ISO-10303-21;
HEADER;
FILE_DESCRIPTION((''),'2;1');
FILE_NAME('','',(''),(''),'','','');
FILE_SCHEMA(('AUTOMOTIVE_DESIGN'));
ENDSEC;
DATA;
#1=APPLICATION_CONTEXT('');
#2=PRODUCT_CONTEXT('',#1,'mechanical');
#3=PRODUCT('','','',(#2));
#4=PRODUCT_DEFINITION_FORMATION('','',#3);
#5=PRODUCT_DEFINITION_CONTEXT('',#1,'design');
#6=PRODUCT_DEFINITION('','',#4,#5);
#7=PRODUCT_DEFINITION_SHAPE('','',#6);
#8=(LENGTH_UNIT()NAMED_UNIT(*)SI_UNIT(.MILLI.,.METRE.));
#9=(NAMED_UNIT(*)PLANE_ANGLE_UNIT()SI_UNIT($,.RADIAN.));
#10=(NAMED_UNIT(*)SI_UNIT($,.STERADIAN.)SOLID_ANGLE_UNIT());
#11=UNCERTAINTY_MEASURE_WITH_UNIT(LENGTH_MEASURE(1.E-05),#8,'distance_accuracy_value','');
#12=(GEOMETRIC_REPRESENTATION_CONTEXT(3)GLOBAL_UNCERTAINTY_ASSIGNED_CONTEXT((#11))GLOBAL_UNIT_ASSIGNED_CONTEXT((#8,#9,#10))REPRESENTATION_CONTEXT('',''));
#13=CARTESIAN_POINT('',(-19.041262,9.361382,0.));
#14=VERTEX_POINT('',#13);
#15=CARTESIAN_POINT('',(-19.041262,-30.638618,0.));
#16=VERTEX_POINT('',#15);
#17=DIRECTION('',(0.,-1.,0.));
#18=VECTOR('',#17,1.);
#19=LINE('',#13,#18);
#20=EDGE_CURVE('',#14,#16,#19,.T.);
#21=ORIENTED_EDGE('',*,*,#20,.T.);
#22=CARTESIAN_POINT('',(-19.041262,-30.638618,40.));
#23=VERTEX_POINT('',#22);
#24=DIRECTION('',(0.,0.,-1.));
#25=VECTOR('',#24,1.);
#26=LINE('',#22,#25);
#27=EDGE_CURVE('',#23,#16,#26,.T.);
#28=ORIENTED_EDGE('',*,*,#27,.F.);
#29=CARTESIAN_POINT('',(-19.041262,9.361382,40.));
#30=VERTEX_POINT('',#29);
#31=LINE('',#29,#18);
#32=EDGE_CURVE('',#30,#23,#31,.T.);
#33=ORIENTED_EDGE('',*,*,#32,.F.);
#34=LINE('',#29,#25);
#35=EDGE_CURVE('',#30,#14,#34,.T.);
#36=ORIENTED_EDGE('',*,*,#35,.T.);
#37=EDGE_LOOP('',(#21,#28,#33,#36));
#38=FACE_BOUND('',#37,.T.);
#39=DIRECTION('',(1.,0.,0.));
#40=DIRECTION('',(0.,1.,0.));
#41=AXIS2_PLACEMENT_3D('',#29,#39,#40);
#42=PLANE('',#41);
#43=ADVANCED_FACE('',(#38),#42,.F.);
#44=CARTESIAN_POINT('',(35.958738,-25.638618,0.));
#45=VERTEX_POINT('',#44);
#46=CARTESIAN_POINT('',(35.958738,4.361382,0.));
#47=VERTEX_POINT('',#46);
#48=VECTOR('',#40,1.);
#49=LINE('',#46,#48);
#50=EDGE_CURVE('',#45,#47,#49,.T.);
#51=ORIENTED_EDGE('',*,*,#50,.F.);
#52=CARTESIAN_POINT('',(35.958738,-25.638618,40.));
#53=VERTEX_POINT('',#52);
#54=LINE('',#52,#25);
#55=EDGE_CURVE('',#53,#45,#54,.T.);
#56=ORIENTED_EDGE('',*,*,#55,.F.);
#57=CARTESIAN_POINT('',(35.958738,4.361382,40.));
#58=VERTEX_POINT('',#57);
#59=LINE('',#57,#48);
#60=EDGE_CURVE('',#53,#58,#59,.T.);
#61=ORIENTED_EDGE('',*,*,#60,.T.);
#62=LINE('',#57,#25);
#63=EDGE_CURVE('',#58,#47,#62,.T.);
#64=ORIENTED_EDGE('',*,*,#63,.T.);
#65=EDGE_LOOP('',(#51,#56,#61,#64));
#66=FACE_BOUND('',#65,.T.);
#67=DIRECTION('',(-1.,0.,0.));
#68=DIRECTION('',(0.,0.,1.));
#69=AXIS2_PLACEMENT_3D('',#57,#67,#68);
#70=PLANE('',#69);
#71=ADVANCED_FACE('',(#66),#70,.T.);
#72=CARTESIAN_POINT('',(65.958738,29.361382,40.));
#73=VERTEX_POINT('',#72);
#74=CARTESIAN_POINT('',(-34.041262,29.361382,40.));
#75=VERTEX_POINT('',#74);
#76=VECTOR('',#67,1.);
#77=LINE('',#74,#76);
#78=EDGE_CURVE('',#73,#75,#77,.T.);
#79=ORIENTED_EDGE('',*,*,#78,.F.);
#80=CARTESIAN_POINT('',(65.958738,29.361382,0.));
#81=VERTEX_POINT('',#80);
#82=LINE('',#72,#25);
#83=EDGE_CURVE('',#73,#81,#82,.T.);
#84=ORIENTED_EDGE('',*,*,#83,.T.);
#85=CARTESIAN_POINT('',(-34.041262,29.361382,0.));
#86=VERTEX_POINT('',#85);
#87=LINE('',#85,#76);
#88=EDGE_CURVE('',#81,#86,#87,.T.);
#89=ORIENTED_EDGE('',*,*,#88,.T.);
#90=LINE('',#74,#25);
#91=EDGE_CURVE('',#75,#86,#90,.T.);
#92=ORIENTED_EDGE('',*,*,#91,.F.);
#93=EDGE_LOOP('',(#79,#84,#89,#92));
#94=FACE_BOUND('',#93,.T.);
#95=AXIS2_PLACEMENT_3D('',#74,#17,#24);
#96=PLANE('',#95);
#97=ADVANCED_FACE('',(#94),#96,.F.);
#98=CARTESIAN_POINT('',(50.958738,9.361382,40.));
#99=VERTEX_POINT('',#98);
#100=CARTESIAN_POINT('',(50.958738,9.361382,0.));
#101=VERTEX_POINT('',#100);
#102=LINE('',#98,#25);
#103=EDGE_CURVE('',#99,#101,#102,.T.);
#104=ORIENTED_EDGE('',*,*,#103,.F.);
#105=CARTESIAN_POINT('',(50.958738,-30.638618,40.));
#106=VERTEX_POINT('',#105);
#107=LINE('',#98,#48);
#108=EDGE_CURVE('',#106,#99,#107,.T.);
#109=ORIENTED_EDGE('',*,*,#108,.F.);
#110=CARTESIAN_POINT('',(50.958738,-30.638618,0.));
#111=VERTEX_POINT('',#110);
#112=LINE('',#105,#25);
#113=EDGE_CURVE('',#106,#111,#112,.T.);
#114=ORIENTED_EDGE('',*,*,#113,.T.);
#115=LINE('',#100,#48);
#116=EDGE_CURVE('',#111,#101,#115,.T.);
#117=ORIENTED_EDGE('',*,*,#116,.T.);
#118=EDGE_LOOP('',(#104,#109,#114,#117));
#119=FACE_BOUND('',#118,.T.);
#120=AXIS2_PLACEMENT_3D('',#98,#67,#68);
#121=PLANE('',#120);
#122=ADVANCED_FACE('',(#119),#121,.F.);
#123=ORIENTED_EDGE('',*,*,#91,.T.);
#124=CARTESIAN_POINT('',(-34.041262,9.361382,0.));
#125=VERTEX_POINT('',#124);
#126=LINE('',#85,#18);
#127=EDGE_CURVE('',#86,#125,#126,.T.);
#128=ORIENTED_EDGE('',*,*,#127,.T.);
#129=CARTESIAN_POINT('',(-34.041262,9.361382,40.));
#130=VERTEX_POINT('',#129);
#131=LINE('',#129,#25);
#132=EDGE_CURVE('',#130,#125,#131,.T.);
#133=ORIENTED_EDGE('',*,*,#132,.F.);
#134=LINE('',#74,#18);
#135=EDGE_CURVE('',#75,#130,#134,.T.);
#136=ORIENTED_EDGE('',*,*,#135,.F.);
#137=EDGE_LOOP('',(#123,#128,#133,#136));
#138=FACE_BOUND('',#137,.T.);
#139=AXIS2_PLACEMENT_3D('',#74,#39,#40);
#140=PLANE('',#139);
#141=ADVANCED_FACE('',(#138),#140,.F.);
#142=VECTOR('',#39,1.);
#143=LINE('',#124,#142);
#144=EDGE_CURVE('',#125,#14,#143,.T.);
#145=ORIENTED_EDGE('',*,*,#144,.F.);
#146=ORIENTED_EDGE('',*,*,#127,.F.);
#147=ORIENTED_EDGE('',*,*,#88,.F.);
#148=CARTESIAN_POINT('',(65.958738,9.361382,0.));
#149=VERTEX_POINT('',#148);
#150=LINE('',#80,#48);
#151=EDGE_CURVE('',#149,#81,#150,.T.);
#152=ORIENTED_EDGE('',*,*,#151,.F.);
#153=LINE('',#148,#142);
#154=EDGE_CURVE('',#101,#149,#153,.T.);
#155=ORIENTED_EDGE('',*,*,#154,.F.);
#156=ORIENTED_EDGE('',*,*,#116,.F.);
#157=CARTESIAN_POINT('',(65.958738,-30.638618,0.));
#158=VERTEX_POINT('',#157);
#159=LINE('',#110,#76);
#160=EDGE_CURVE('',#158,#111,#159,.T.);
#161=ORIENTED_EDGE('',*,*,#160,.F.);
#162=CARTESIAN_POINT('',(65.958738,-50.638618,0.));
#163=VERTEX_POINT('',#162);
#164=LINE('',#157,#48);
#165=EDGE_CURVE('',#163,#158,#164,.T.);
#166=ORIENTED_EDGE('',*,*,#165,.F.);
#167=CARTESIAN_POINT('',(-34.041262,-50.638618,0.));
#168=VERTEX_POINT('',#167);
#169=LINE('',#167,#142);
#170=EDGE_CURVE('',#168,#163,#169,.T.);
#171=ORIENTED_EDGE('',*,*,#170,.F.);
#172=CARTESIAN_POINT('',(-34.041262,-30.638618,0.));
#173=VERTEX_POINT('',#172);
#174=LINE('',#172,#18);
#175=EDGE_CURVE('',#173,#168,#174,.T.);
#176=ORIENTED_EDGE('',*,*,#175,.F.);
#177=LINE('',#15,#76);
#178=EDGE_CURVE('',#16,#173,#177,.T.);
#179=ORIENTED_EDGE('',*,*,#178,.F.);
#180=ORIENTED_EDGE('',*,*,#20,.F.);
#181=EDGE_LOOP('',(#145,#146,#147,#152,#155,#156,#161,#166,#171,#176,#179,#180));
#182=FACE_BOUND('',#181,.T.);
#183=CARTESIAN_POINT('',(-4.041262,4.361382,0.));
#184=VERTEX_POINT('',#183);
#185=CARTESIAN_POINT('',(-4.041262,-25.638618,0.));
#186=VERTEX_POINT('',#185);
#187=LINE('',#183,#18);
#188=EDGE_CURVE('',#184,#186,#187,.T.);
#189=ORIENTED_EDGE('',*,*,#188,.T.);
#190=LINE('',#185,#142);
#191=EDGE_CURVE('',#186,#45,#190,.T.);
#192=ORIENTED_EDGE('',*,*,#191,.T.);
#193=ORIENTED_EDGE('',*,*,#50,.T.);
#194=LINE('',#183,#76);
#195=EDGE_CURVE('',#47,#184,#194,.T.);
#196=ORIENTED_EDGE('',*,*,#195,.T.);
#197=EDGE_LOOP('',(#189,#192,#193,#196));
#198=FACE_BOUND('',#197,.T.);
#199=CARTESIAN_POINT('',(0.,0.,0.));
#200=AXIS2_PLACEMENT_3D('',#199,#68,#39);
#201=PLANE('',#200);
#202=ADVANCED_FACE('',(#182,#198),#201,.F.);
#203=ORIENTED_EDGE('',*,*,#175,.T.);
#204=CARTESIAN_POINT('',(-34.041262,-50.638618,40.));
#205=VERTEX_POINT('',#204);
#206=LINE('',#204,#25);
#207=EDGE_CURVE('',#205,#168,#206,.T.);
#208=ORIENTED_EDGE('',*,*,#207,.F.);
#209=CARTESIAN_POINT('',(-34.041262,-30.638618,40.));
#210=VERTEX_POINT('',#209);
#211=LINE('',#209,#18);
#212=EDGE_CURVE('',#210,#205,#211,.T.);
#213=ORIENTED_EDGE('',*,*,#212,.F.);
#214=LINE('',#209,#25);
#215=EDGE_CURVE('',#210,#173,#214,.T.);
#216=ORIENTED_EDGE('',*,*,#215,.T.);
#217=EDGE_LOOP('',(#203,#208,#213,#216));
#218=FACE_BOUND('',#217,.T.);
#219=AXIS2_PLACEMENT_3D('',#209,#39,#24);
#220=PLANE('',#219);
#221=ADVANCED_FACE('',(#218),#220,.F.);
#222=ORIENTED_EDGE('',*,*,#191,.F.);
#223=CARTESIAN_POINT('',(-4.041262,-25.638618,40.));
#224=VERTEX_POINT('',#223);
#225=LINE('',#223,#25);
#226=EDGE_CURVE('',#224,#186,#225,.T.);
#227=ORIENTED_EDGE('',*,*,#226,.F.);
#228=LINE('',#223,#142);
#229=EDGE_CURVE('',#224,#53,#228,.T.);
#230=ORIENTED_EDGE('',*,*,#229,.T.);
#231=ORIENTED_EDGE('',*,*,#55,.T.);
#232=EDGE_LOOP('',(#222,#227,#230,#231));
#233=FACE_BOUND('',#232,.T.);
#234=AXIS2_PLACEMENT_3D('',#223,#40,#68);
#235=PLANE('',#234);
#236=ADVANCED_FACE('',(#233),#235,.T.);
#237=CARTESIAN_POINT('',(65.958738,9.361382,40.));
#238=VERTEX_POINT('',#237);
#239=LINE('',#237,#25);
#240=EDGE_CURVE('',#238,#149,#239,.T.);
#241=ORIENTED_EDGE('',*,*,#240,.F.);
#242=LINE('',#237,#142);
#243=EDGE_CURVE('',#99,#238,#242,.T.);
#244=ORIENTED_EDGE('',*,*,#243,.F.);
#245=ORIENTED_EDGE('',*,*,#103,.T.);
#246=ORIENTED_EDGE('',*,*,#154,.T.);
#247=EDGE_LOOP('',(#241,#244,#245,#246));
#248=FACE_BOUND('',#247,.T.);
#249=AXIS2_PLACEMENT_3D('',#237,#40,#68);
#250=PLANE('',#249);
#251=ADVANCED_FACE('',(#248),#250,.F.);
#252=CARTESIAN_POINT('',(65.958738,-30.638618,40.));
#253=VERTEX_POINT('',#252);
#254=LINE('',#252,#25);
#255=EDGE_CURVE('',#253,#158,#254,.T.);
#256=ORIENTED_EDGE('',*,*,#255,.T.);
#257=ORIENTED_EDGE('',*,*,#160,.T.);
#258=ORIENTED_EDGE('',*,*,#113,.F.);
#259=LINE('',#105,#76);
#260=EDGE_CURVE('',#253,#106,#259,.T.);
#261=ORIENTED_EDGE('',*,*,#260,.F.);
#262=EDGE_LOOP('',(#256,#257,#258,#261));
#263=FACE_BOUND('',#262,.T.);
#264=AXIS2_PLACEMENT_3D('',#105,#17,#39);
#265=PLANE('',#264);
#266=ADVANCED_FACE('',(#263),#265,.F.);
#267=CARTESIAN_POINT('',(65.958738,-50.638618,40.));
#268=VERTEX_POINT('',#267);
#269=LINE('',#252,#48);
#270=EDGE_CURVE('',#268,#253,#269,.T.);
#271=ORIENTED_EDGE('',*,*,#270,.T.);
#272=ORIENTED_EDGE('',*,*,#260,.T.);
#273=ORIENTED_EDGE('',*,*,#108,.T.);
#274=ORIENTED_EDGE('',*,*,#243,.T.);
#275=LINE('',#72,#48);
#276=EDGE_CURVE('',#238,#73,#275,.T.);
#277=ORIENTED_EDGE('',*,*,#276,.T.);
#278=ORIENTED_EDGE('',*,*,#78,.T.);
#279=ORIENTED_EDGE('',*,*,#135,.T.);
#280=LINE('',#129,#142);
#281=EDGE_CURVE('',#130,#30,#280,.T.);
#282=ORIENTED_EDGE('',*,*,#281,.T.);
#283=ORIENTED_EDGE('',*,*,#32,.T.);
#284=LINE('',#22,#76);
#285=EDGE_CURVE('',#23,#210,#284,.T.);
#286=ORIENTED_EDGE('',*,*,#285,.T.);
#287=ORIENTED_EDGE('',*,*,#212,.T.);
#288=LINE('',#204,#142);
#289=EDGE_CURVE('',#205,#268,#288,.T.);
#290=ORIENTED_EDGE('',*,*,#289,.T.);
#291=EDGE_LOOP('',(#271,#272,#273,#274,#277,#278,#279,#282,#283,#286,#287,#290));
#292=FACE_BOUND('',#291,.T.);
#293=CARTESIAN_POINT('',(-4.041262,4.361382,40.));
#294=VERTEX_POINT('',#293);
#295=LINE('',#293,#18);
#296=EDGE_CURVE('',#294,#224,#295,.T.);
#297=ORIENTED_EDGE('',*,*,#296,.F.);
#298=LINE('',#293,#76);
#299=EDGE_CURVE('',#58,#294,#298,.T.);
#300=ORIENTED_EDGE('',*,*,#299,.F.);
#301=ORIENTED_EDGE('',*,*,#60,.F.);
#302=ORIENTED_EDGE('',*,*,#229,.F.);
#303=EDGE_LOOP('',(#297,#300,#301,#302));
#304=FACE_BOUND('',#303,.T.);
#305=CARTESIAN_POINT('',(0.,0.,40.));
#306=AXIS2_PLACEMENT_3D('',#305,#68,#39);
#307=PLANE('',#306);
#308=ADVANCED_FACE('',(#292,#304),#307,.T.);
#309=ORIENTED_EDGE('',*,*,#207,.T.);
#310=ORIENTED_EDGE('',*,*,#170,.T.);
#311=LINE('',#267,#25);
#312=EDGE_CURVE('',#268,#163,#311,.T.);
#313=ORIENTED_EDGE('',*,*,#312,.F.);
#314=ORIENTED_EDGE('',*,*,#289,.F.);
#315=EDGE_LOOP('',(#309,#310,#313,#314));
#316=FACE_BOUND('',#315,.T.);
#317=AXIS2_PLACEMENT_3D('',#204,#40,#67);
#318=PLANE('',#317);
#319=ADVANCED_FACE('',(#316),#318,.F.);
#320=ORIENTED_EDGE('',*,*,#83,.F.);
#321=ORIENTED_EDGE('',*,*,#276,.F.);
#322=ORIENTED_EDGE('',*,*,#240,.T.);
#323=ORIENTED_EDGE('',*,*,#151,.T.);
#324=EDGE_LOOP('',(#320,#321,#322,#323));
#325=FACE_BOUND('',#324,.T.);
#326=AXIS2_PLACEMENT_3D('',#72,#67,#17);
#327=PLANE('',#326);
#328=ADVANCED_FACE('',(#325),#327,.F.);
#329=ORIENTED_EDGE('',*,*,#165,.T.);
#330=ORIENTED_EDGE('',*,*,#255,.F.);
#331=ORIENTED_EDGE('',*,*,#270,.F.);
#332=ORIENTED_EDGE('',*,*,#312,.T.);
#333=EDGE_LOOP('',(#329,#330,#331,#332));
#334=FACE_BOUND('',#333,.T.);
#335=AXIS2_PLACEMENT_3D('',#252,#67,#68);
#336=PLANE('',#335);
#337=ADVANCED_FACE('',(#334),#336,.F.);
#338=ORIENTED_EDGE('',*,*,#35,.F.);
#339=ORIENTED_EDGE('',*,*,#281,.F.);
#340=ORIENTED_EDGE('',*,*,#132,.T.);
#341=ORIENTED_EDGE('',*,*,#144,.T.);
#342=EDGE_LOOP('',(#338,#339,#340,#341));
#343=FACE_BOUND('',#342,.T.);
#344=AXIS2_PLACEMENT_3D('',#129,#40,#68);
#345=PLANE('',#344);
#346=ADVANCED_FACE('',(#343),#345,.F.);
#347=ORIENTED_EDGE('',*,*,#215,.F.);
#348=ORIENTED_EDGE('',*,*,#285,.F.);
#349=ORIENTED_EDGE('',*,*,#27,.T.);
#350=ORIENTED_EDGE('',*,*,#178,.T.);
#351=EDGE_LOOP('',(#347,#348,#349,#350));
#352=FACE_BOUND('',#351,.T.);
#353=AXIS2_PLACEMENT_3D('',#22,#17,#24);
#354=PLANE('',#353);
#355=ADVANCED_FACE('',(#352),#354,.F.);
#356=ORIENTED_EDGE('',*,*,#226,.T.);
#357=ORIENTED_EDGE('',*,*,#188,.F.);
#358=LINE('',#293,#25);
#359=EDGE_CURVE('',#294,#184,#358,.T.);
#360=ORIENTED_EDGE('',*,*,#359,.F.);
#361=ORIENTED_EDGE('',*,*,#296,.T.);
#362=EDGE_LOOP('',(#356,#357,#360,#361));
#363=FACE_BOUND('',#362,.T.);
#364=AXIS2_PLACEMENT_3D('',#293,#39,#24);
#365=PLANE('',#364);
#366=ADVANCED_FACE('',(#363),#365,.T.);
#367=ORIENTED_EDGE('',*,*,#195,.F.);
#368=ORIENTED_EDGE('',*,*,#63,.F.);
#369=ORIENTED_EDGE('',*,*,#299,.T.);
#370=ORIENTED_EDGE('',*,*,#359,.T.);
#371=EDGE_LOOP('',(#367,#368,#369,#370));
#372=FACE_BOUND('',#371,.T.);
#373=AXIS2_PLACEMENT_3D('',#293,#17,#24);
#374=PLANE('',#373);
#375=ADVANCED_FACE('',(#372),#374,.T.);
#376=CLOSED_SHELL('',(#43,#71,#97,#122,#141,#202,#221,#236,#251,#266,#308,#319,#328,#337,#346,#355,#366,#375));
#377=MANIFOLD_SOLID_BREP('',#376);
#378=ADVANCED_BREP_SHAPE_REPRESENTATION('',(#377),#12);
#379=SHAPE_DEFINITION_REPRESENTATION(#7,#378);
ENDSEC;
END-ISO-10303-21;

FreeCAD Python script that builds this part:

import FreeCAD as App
import Part
import Sketcher
Q = App.Units.Quantity

doc = App.newDocument("Part")
body = doc.addObject("PartDesign::Body", "Body")

# Sketch on XY plane
sketch1 = doc.addObject("Sketcher::SketchObject", "Sketch")
body.addObject(sketch1)
sketch1.AttachmentSupport = (doc.XY_Plane, [""])
sketch1.MapMode = "FlatFace"
sketch1.addGeometry([
    Part.LineSegment(App.Vector(65.958738, 29.361382, 0), App.Vector(-34.041262, 29.361382, 0)),  # 0
    Part.LineSegment(App.Vector(-34.041262, 29.361382, 0), App.Vector(-34.041262, 9.361382, 0)),  # 1
    Part.LineSegment(App.Vector(-34.041262, 9.361382, 0), App.Vector(-19.041262, 9.361382, 0)),  # 2
    Part.LineSegment(App.Vector(-19.041262, 9.361382, 0), App.Vector(-19.041262, -30.638618, 0)),  # 3
    Part.LineSegment(App.Vector(-19.041262, -30.638618, 0), App.Vector(-34.041262, -30.638618, 0)),  # 4
    Part.LineSegment(App.Vector(-34.041262, -30.638618, 0), App.Vector(-34.041262, -50.638618, 0)),  # 5
    Part.LineSegment(App.Vector(-34.041262, -50.638618, 0), App.Vector(65.958738, -50.638618, 0)),  # 6
    Part.LineSegment(App.Vector(65.958738, -50.638618, 0), App.Vector(65.958738, -30.638618, 0)),  # 7
    Part.LineSegment(App.Vector(65.958738, -30.638618, 0), App.Vector(50.958738, -30.638618, 0)),  # 8
    Part.LineSegment(App.Vector(50.958738, -30.638618, 0), App.Vector(50.958738, 9.361382, 0)),  # 9
    Part.LineSegment(App.Vector(50.958738, 9.361382, 0), App.Vector(65.958738, 9.361382, 0)),  # 10
    Part.LineSegment(App.Vector(65.958738, 9.361382, 0), App.Vector(65.958738, 29.361382, 0)),  # 11
    Part.LineSegment(App.Vector(-4.041262, -25.638618, 0), App.Vector(-4.041262, 4.361382, 0)),  # 12
    Part.LineSegment(App.Vector(-4.041262, 4.361382, 0), App.Vector(35.958738, 4.361382, 0)),  # 13
    Part.LineSegment(App.Vector(35.958738, 4.361382, 0), App.Vector(35.958738, -25.638618, 0)),  # 14
    Part.LineSegment(App.Vector(35.958738, -25.638618, 0), App.Vector(-4.041262, -25.638618, 0)),  # 15
], False)
sketch1.addConstraint([
    Sketcher.Constraint("Coincident", 0, 2, 1, 1),
    Sketcher.Constraint("Coincident", 1, 2, 2, 1),
    Sketcher.Constraint("Coincident", 2, 2, 3, 1),
    Sketcher.Constraint("Coincident", 3, 2, 4, 1),
    Sketcher.Constraint("Coincident", 4, 2, 5, 1),
    Sketcher.Constraint("Coincident", 5, 2, 6, 1),
    Sketcher.Constraint("Coincident", 6, 2, 7, 1),
    Sketcher.Constraint("Coincident", 7, 2, 8, 1),
    Sketcher.Constraint("Coincident", 8, 2, 9, 1),
    Sketcher.Constraint("Coincident", 9, 2, 10, 1),
    Sketcher.Constraint("Coincident", 10, 2, 11, 1),
    Sketcher.Constraint("Coincident", 11, 2, 0, 1),
    Sketcher.Constraint("Coincident", 12, 2, 13, 1),
    Sketcher.Constraint("Coincident", 13, 2, 14, 1),
    Sketcher.Constraint("Coincident", 14, 2, 15, 1),
    Sketcher.Constraint("Coincident", 15, 2, 12, 1),
    Sketcher.Constraint("Horizontal", 0),
    Sketcher.Constraint("Vertical", 1),
    Sketcher.Constraint("Horizontal", 2),
    Sketcher.Constraint("Vertical", 3),
    Sketcher.Constraint("Horizontal", 4),
    Sketcher.Constraint("Vertical", 5),
    Sketcher.Constraint("Horizontal", 6),
    Sketcher.Constraint("Vertical", 7),
    Sketcher.Constraint("Horizontal", 8),
    Sketcher.Constraint("Vertical", 9),
    Sketcher.Constraint("Horizontal", 10),
    Sketcher.Constraint("Vertical", 11),
    Sketcher.Constraint("Vertical", 12),
    Sketcher.Constraint("Horizontal", 13),
    Sketcher.Constraint("Vertical", 14),
    Sketcher.Constraint("Horizontal", 15),
    Sketcher.Constraint("Horizontal", 4, 2, 7, 2),
    Sketcher.Constraint("Horizontal", 2, 2, 9, 2),
    Sketcher.Constraint("Vertical", 1, 2, 4, 2),
    Sketcher.Constraint("Vertical", 7, 2, 10, 2),
    Sketcher.Constraint("Equal", 4, 8),
    Sketcher.Constraint("Equal", 15, 3),
    Sketcher.Constraint("Equal", 1, 5),
    Sketcher.Constraint("DistanceX", 0, 2, 0, 1, Q("100 mm")),
    Sketcher.Constraint("DistanceX", 2, 1, 2, 2, Q("15 mm")),
    Sketcher.Constraint("DistanceX", 13, 1, 13, 2, Q("40 mm")),
    Sketcher.Constraint("DistanceY", 1, 2, 1, 1, Q("20 mm")),
    Sketcher.Constraint("DistanceY", 12, 1, 12, 2, Q("30 mm")),
    Sketcher.Constraint("DistanceX", 2, 2, 12, 2, Q("15 mm")),
    Sketcher.Constraint("DistanceY", 12, 2, 2, 2, Q("5 mm")),
    Sketcher.Constraint("DistanceX", 0, 2, -1, 1, Q("34.041262 mm")),
    Sketcher.Constraint("DistanceY", -1, 1, 0, 2, Q("29.361382 mm")),
])
pad1 = doc.addObject("PartDesign::Pad", "Pad")
body.addObject(pad1)
pad1.Profile = sketch1
pad1.Length = 40

doc.recompute()
